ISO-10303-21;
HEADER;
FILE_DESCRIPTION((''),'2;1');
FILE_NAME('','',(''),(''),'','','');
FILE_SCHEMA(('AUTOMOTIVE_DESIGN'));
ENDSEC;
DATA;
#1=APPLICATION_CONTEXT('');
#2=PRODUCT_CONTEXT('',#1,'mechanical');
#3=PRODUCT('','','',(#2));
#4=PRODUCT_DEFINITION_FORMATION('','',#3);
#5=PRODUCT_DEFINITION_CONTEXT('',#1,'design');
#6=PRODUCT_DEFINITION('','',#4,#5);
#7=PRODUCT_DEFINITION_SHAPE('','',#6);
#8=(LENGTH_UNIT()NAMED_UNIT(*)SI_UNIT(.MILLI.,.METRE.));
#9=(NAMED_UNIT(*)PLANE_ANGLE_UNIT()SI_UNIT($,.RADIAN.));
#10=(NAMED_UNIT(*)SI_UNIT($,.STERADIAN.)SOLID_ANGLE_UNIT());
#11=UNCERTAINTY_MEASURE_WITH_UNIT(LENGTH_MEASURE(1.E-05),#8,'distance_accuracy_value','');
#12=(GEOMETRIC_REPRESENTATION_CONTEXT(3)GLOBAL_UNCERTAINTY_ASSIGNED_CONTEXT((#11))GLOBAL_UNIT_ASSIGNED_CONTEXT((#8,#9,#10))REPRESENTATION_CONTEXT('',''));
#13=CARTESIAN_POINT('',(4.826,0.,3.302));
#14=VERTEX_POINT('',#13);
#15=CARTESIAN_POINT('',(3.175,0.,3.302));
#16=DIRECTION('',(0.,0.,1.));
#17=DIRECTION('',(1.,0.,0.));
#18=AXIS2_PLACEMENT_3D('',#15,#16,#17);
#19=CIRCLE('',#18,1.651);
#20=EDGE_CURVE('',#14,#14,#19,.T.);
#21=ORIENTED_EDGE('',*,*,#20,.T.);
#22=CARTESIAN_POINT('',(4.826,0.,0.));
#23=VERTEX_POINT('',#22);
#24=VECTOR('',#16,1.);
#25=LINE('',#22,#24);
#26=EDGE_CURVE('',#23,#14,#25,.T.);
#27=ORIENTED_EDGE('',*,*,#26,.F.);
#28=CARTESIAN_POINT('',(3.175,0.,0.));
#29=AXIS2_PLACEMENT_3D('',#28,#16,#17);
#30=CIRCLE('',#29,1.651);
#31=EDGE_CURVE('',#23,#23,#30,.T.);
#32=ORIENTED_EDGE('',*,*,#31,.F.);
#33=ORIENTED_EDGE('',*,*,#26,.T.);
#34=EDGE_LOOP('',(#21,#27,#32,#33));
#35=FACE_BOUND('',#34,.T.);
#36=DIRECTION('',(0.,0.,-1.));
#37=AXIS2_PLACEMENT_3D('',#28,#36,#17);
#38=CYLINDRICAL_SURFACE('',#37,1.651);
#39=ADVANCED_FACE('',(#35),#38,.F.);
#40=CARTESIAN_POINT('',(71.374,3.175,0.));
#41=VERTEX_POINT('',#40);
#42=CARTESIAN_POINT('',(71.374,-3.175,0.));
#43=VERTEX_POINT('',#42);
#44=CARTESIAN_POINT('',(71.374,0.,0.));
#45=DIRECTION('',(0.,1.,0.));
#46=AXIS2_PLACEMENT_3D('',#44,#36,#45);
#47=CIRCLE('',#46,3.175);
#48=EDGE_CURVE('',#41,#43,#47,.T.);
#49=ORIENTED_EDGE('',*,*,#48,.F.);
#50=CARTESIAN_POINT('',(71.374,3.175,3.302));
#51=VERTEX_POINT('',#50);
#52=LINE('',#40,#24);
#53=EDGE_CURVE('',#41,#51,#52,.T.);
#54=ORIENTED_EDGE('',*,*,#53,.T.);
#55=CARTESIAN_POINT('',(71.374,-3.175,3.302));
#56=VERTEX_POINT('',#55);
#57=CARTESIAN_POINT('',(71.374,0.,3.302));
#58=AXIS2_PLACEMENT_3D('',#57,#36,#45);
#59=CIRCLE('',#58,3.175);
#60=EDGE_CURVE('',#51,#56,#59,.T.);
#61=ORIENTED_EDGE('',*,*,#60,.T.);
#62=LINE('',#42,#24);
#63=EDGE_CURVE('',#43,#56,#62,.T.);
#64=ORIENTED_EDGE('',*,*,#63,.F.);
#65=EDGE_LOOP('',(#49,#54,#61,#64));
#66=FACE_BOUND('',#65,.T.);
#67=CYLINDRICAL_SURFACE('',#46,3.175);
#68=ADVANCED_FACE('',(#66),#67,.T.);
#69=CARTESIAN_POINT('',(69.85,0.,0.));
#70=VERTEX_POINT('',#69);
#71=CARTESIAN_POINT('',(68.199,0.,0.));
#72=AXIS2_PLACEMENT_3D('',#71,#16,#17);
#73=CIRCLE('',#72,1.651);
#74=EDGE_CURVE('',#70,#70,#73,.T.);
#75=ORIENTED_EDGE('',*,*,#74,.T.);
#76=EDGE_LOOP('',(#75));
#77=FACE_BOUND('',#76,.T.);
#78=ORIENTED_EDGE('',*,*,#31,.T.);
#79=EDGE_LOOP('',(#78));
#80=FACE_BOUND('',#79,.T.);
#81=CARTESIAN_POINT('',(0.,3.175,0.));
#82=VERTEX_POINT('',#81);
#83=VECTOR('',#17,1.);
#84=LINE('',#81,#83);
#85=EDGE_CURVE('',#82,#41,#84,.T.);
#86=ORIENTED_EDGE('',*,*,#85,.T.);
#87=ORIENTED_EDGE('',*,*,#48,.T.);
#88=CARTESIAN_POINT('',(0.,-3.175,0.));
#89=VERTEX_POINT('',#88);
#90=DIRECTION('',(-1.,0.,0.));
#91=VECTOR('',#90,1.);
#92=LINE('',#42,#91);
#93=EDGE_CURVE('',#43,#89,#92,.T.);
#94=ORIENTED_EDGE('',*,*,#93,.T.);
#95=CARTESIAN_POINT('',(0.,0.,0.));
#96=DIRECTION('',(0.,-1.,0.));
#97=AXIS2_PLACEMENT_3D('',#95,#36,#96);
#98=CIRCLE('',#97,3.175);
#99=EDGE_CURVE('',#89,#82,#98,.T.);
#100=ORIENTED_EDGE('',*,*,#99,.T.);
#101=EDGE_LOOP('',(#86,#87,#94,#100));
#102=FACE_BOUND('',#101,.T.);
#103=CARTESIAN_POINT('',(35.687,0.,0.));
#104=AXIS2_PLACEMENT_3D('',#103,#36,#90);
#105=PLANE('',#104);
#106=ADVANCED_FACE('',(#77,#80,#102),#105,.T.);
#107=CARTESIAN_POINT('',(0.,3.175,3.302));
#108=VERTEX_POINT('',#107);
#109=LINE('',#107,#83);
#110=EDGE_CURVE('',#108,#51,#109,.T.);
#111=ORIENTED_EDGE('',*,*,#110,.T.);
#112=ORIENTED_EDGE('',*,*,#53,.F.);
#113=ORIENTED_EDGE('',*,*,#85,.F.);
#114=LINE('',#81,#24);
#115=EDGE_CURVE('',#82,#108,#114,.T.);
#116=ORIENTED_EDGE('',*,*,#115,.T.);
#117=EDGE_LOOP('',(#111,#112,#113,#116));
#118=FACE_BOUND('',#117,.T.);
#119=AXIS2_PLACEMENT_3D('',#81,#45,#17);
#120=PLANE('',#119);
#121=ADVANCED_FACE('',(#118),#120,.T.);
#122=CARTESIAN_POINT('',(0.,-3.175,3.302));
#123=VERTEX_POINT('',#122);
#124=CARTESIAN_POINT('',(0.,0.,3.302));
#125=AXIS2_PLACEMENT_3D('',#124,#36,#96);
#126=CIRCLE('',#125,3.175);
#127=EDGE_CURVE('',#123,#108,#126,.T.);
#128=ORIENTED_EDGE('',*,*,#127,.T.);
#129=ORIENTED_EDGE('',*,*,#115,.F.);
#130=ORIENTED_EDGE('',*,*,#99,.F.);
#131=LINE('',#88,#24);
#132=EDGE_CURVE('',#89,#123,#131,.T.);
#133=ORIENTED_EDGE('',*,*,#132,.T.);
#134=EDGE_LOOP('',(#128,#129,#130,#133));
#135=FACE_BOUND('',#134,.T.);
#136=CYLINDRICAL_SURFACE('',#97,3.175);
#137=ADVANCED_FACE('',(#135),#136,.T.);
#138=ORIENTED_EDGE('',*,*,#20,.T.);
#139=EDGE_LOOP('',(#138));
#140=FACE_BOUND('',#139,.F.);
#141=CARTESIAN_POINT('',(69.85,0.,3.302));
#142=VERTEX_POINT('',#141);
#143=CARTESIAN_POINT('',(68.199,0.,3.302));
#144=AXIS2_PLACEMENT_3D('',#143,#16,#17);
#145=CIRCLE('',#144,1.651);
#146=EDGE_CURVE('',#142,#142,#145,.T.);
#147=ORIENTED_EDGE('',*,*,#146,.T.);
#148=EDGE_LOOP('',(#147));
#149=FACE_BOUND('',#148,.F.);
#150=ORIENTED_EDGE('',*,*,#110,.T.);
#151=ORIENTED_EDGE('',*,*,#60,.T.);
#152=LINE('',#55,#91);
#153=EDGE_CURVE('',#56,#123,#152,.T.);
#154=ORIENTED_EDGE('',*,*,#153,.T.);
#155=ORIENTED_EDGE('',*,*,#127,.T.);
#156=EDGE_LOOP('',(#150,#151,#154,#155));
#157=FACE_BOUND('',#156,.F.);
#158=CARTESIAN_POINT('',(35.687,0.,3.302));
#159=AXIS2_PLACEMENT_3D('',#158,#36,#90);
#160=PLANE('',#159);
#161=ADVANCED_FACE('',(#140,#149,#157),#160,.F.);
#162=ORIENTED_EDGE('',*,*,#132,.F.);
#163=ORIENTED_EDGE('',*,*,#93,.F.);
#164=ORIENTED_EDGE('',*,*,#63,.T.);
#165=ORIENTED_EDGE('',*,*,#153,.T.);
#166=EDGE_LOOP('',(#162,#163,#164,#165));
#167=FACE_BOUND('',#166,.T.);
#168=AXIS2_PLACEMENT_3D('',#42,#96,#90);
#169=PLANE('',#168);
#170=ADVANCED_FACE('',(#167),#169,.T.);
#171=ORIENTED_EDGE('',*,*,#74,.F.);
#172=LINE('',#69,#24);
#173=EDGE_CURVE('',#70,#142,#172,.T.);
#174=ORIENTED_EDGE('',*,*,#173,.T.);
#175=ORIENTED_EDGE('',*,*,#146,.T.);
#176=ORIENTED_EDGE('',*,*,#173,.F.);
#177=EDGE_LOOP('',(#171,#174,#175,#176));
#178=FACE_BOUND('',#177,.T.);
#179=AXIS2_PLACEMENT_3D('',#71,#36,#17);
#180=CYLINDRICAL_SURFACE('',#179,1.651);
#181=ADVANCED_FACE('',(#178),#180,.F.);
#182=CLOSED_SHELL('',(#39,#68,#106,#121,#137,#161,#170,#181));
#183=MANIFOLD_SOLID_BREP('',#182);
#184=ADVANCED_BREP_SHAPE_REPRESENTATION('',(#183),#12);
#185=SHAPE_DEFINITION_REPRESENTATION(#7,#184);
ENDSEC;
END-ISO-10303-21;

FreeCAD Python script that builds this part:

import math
import FreeCAD as App
import Part
import Sketcher
Q = App.Units.Quantity

doc = App.newDocument("Part")
body = doc.addObject("PartDesign::Body", "Body")

sketch1 = body.newObject("Sketcher::SketchObject", "Sketch")
sketch1.AttachmentSupport = (doc.getObject("XY_Plane"), [""])
sketch1.MapMode = "FlatFace"
sketch1.addGeometry(Part.LineSegment(App.Vector(71.4, 3.2, 0), App.Vector(0, 3.2, 0)), False)
sketch1.addGeometry(Part.ArcOfCircle(Part.Circle(App.Vector(0, 0, 0), App.Vector(0, 0, 1), 3.2), math.radians(90), math.radians(270)), False)
sketch1.addGeometry(Part.LineSegment(App.Vector(0, -3.2, 0), App.Vector(71.4, -3.2, 0)), False)
sketch1.addGeometry(Part.ArcOfCircle(Part.Circle(App.Vector(71.4, 0, 0), App.Vector(0, 0, 1), 3.2), math.radians(-90), math.radians(90)), False)
sketch1.addGeometry(Part.Circle(App.Vector(68.2, 0, 0), App.Vector(0, 0, 1), 1.7), False)
sketch1.addGeometry(Part.Circle(App.Vector(3.2, 0, 0), App.Vector(0, 0, 1), 1.7), False)
sketch1.addConstraint(Sketcher.Constraint("Tangent", 0, 2, 1, 1))
sketch1.addConstraint(Sketcher.Constraint("Tangent", 1, 2, 2, 1))
sketch1.addConstraint(Sketcher.Constraint("Tangent", 2, 2, 3, 1))
sketch1.addConstraint(Sketcher.Constraint("Tangent", 3, 2, 0, 1))
sketch1.addConstraint(Sketcher.Constraint("Horizontal", 0))
sketch1.addConstraint(Sketcher.Constraint("Horizontal", 2))
sketch1.addConstraint(Sketcher.Constraint("Coincident", 1, 3, -1, 1))
sketch1.addConstraint(Sketcher.Constraint("Equal", 4, 5))
sketch1.addConstraint(Sketcher.Constraint("PointOnObject", 4, 3, -1))
sketch1.addConstraint(Sketcher.Constraint("PointOnObject", 5, 3, -1))
sketch1.addConstraint(Sketcher.Constraint("Diameter", 4, Q("0.13 in")))
sketch1.addConstraint(Sketcher.Constraint("Radius", 1, Q("0.125 in")))
sketch1.addConstraint(Sketcher.Constraint("DistanceX", 0, 2, 0, 1, Q("2.81 in")))
sketch1.addConstraint(Sketcher.Constraint("DistanceX", 5, 3, 4, 3, Q("2.56 in")))
sketch1.addConstraint(Sketcher.Constraint("DistanceX", -1, 1, 4, 3, Q("2.685 in")))
pad1 = body.newObject("PartDesign::Pad", "Pad")
pad1.Profile = sketch1
pad1.Length = Q("0.13 in")

doc.recompute()
